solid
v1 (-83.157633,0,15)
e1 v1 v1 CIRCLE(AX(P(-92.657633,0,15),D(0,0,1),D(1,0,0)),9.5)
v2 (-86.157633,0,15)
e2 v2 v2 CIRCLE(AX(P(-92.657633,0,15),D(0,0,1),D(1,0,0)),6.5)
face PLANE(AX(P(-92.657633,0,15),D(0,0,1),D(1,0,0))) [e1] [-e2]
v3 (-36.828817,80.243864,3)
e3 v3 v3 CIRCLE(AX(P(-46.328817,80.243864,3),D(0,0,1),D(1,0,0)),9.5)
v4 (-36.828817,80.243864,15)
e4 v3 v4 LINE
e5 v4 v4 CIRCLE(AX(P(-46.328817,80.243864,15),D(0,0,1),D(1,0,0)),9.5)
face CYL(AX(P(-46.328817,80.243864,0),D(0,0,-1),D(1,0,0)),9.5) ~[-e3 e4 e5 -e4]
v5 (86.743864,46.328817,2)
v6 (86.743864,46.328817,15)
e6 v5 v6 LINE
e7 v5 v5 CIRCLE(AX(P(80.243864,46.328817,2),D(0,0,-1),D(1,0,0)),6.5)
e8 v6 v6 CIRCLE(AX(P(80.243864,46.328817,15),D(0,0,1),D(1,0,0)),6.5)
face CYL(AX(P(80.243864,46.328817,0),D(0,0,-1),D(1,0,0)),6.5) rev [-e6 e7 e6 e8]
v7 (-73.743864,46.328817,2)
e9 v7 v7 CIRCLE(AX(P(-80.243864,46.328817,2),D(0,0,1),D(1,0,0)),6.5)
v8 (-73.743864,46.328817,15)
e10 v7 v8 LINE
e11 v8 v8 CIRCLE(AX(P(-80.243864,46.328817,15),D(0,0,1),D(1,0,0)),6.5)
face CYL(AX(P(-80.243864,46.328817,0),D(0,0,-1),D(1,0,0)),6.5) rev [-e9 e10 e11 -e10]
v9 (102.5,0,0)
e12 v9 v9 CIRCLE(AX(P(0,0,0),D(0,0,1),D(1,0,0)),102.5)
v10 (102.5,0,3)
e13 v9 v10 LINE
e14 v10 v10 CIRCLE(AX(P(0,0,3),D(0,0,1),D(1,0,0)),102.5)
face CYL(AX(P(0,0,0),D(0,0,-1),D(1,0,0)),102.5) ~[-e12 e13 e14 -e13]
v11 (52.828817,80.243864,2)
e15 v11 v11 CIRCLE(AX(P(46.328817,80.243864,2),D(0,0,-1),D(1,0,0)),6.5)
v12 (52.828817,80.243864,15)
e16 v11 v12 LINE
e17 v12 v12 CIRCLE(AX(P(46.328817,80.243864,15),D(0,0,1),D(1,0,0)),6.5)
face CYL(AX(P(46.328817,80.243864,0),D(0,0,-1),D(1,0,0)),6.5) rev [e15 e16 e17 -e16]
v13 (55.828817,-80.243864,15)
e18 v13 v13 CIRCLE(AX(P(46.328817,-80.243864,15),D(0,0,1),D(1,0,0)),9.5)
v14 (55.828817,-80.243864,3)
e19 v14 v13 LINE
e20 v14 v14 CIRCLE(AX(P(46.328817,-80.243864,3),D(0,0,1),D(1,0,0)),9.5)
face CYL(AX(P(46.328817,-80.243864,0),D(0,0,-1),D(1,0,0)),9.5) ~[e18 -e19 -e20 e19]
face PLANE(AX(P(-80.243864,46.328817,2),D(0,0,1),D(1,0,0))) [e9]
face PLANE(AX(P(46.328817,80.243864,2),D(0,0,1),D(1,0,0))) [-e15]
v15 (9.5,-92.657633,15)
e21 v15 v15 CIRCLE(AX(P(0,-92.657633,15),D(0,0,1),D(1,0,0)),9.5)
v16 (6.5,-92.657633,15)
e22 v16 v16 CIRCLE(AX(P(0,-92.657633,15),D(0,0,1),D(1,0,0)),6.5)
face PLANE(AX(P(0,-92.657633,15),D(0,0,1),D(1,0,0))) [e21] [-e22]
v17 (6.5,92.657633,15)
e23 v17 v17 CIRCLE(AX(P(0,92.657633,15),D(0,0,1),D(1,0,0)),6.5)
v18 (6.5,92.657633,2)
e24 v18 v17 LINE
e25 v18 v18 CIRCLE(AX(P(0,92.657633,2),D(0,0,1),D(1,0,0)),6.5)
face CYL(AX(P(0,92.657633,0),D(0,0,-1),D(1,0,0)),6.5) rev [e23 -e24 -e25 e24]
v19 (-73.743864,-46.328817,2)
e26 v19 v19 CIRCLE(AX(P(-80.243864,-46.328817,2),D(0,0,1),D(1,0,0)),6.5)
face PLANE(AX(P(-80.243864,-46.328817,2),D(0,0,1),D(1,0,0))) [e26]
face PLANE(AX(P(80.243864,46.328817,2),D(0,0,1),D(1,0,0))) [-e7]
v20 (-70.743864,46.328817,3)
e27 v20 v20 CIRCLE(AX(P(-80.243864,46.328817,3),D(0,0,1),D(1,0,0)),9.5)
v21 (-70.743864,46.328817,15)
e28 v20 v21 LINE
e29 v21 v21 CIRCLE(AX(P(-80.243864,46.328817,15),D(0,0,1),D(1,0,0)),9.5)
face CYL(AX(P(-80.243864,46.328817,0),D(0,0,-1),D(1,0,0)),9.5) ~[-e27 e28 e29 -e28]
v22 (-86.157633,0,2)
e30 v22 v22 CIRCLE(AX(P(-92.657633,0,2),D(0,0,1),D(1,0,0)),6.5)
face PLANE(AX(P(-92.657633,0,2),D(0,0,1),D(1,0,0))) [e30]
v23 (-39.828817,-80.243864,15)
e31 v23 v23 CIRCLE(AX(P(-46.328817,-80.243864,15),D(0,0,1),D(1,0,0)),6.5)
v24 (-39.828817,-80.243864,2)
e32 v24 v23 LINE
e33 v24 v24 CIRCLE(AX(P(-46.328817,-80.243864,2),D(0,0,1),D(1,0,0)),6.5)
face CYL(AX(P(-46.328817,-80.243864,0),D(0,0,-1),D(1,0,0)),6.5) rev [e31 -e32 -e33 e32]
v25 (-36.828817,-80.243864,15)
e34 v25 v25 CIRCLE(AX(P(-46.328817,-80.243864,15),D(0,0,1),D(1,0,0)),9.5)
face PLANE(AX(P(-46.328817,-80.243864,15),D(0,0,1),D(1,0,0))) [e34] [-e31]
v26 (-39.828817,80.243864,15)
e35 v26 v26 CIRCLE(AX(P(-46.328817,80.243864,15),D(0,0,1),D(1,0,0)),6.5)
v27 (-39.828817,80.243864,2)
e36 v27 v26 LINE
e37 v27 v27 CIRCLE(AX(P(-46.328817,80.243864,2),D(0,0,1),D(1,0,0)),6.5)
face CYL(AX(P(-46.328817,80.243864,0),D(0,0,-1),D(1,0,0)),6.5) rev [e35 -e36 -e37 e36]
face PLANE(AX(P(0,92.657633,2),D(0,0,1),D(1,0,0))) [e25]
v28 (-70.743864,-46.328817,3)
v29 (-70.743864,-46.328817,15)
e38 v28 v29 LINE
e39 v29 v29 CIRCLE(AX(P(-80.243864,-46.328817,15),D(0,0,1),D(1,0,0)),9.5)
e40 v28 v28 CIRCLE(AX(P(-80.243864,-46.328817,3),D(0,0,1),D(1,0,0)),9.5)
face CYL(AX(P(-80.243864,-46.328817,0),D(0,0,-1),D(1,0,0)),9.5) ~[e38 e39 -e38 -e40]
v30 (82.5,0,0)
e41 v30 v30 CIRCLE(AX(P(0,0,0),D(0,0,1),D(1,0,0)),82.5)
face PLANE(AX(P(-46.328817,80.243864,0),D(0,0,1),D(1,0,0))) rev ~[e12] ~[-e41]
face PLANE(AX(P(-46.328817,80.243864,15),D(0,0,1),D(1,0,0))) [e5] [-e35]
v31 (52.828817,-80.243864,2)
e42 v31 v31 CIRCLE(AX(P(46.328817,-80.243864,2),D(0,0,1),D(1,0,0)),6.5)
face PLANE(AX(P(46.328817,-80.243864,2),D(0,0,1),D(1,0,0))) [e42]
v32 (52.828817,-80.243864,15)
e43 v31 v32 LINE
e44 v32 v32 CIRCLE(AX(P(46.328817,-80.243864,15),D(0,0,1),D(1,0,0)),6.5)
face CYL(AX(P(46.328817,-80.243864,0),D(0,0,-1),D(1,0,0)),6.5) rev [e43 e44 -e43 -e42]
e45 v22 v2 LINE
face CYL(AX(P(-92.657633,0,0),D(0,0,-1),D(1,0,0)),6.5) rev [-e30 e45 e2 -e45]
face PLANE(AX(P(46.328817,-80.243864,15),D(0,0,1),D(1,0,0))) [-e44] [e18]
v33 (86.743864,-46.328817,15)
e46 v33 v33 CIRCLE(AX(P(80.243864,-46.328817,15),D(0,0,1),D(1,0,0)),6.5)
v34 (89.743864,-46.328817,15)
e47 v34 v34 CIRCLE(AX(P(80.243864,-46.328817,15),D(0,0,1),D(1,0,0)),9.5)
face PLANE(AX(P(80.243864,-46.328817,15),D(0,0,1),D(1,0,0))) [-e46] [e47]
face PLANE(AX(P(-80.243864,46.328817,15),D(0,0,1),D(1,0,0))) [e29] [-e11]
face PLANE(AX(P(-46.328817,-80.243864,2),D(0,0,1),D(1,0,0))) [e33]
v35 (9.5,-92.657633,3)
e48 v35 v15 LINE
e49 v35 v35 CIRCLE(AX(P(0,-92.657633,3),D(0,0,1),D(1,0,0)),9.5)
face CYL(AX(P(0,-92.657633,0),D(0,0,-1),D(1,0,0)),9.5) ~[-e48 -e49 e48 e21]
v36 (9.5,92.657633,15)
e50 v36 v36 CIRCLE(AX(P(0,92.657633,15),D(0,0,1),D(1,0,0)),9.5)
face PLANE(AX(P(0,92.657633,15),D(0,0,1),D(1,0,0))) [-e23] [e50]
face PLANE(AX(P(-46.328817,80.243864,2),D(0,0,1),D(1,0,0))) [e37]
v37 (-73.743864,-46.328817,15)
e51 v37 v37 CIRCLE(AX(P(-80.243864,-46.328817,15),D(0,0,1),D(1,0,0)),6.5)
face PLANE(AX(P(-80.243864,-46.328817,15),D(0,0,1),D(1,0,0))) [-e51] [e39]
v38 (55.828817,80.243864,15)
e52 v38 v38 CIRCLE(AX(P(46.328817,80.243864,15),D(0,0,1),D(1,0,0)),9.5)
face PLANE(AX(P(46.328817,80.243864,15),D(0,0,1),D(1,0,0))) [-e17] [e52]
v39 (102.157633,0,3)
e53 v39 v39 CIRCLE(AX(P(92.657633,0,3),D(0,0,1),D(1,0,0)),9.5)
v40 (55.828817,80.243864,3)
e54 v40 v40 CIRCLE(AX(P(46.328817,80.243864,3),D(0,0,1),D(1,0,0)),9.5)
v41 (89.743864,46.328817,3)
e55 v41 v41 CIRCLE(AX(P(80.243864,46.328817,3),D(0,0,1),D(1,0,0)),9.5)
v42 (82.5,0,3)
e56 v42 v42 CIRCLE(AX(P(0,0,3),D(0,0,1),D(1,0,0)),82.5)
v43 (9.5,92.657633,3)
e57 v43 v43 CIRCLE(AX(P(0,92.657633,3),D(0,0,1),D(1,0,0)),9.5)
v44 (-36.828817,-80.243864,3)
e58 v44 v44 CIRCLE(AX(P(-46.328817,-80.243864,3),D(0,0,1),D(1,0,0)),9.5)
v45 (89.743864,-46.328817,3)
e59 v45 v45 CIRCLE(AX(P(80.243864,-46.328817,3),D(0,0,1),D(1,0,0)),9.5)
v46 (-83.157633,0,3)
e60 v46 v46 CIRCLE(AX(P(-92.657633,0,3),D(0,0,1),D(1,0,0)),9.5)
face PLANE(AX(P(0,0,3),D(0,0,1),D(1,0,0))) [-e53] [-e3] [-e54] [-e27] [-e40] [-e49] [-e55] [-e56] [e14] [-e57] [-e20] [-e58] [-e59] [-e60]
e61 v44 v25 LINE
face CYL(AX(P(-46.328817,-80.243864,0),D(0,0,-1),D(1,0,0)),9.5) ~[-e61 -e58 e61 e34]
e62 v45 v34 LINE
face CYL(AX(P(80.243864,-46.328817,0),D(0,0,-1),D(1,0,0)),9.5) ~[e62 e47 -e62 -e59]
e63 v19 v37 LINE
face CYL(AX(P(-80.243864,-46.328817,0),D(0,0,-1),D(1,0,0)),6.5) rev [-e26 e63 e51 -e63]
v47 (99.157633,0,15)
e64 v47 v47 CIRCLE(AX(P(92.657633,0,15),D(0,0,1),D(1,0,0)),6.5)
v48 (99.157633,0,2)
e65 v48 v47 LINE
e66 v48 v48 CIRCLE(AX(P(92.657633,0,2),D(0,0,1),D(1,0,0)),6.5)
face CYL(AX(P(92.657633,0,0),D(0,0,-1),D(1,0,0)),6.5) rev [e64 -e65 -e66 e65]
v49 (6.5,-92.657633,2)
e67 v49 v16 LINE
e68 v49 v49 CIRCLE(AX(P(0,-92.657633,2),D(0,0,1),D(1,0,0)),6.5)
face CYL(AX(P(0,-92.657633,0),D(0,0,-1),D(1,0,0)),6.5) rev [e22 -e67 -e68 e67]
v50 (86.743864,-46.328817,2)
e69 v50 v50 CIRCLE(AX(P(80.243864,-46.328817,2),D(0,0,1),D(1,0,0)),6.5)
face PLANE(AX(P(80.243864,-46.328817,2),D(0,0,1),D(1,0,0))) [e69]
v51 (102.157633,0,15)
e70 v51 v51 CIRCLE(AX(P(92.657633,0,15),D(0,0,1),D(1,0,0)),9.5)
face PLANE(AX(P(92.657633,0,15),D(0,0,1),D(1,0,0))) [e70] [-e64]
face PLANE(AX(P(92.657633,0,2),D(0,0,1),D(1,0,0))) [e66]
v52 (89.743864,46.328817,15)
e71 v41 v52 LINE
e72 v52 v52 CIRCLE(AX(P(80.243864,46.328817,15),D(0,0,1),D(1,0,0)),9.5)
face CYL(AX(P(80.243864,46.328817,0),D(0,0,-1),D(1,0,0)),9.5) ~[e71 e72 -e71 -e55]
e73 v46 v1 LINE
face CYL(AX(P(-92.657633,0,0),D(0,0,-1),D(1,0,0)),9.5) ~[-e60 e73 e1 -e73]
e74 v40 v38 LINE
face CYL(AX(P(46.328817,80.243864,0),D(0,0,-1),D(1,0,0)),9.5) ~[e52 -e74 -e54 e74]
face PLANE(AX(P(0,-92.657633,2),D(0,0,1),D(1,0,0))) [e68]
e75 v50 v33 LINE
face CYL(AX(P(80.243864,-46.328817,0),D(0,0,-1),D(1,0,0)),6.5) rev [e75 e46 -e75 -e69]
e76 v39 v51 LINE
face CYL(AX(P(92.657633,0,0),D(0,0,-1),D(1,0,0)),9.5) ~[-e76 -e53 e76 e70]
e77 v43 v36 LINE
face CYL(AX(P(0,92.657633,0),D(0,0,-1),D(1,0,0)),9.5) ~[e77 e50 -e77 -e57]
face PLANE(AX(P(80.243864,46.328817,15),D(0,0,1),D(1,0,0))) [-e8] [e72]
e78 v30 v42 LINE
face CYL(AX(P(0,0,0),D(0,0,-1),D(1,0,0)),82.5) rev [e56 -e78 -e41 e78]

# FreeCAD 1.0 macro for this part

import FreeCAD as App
import Part
import Sketcher

doc = App.newDocument("Part")
params = doc.addObject("Spreadsheet::Sheet", "Params")
for row, (alias, value) in enumerate([
    ("sketch1_diameter", "205 mm"),
    ("sketch1_diameter2", "19 mm"),
    ("sketch1_diameter3", "165 mm"),
    ("pad1_length", "3 mm"),
    ("sketch2_diameter", "19 mm"),
    ("sketch2_diameter2", "13 mm"),
    ("pad2_length", "15 mm"),
    ("sketch3_diameter", "13 mm"),
    ("sketch3_diameter2", "19 mm"),
    ("pad3_length", "2 mm"),
], start=1):
    params.set(f"A{row}", alias)
    params.set(f"B{row}", "=" + value)
    params.setAlias(f"B{row}", alias)

body = doc.addObject("PartDesign::Body", "Body")

sketch1 = body.newObject("Sketcher::SketchObject", "Sketch")
sketch1.AttachmentSupport = (doc.getObject("XY_Plane"), [""])
sketch1.MapMode = "FlatFace"
sketch1.addGeometry([
    Part.Circle(App.Vector(0, 0, 0), App.Vector(0, 0, 1), 102),
    Part.Circle(App.Vector(-46, -80, 0), App.Vector(0, 0, 1), 10),
    Part.Circle(App.Vector(-80, -46, 0), App.Vector(0, 0, 1), 10),
    Part.Circle(App.Vector(0, -93, 0), App.Vector(0, 0, 1), 10),
    Part.Circle(App.Vector(46, -80, 0), App.Vector(0, 0, 1), 10),
    Part.Circle(App.Vector(80, -46, 0), App.Vector(0, 0, 1), 10),
    Part.Circle(App.Vector(-93, 0, 0), App.Vector(0, 0, 1), 10),
    Part.Circle(App.Vector(-80, 46, 0), App.Vector(0, 0, 1), 10),
    Part.Circle(App.Vector(-46, 80, 0), App.Vector(0, 0, 1), 10),
    Part.Circle(App.Vector(0, 0, 0), App.Vector(0, 0, 1), 82),
    Part.Circle(App.Vector(93, 0, 0), App.Vector(0, 0, 1), 10),
    Part.Circle(App.Vector(80, 46, 0), App.Vector(0, 0, 1), 10),
    Part.Circle(App.Vector(0, 93, 0), App.Vector(0, 0, 1), 10),
    Part.Circle(App.Vector(46, 80, 0), App.Vector(0, 0, 1), 10),
], False)
sketch1.addConstraint([
    Sketcher.Constraint("Coincident", 0, 3, -1, 1),
    Sketcher.Constraint("Coincident", 9, 3, -1, 1),
    Sketcher.Constraint("Equal", 1, 2),
    Sketcher.Constraint("Equal", 2, 3),
    Sketcher.Constraint("Equal", 3, 4),
    Sketcher.Constraint("Equal", 4, 5),
    Sketcher.Constraint("Equal", 5, 6),
    Sketcher.Constraint("Equal", 6, 7),
    Sketcher.Constraint("Equal", 7, 8),
    Sketcher.Constraint("Equal", 8, 10),
    Sketcher.Constraint("Equal", 10, 11),
    Sketcher.Constraint("Equal", 11, 12),
    Sketcher.Constraint("Equal", 12, 13),
    Sketcher.Constraint("Symmetric", 5, 3, 7, 3, -1, 1),
    Sketcher.Constraint("Symmetric", 4, 3, 8, 3, -1, 1),
    Sketcher.Constraint("Symmetric", 6, 3, 10, 3, -1, 1),
    Sketcher.Constraint("Symmetric", 2, 3, 11, 3, -1, 1),
    Sketcher.Constraint("Symmetric", 3, 3, 12, 3, -1, 1),
    Sketcher.Constraint("Symmetric", 1, 3, 13, 3, -1, 1),
    Sketcher.Constraint("Symmetric", 1, 3, 4, 3, -2),
    Sketcher.Constraint("Symmetric", 2, 3, 5, 3, -2),
    Sketcher.Constraint("PointOnObject", 3, 3, -2),
    Sketcher.Constraint("PointOnObject", 6, 3, -1),
    Sketcher.Constraint("Diameter", 0, 205.0),
    Sketcher.Constraint("Diameter", 1, 19.0),
    Sketcher.Constraint("Diameter", 9, 165.0),
    Sketcher.Constraint("DistanceY", 3, 3, 1, 3, 12.413769),
    Sketcher.Constraint("DistanceX", 2, 3, 4, 3, 126.572681),
    Sketcher.Constraint("DistanceX", 2, 3, 5, 3, 160.487728),
    Sketcher.Constraint("DistanceX", 6, 3, 2, 3, 12.413769),
    Sketcher.Constraint("DistanceY", 1, 3, 7, 3, 126.572681),
    Sketcher.Constraint("DistanceY", 1, 3, 8, 3, 160.487728),
])
sketch1.setExpression("Constraints[23]", "Params.sketch1_diameter")
sketch1.setExpression("Constraints[24]", "Params.sketch1_diameter2")
sketch1.setExpression("Constraints[25]", "Params.sketch1_diameter3")
pad1 = body.newObject("PartDesign::Pad", "Pad")
pad1.Profile = sketch1
pad1.setExpression("Length", "Params.pad1_length")

sketch2 = body.newObject("Sketcher::SketchObject", "Sketch001")
sketch2.AttachmentSupport = (doc.getObject("XY_Plane"), [""])
sketch2.MapMode = "FlatFace"
sketch2.addGeometry([
    Part.Circle(App.Vector(-80, 46, 0), App.Vector(0, 0, 1), 10),
    Part.Circle(App.Vector(-80, 46, 0), App.Vector(0, 0, 1), 6),
    Part.Circle(App.Vector(-46, 80, 0), App.Vector(0, 0, 1), 10),
    Part.Circle(App.Vector(-46, 80, 0), App.Vector(0, 0, 1), 6),
    Part.Circle(App.Vector(0, 93, 0), App.Vector(0, 0, 1), 10),
    Part.Circle(App.Vector(0, 93, 0), App.Vector(0, 0, 1), 6),
    Part.Circle(App.Vector(93, 0, 0), App.Vector(0, 0, 1), 10),
    Part.Circle(App.Vector(93, 0, 0), App.Vector(0, 0, 1), 6),
    Part.Circle(App.Vector(80, -46, 0), App.Vector(0, 0, 1), 10),
    Part.Circle(App.Vector(80, -46, 0), App.Vector(0, 0, 1), 6),
    Part.Circle(App.Vector(46, -80, 0), App.Vector(0, 0, 1), 10),
    Part.Circle(App.Vector(46, -80, 0), App.Vector(0, 0, 1), 6),
    Part.Circle(App.Vector(0, -93, 0), App.Vector(0, 0, 1), 10),
    Part.Circle(App.Vector(0, -93, 0), App.Vector(0, 0, 1), 6),
    Part.Circle(App.Vector(-46, -80, 0), App.Vector(0, 0, 1), 10),
    Part.Circle(App.Vector(-46, -80, 0), App.Vector(0, 0, 1), 6),
    Part.Circle(App.Vector(-80, -46, 0), App.Vector(0, 0, 1), 10),
    Part.Circle(App.Vector(-80, -46, 0), App.Vector(0, 0, 1), 6),
    Part.Circle(App.Vector(-93, 0, 0), App.Vector(0, 0, 1), 10),
    Part.Circle(App.Vector(-93, 0, 0), App.Vector(0, 0, 1), 6),
    Part.Circle(App.Vector(46, 80, 0), App.Vector(0, 0, 1), 10),
    Part.Circle(App.Vector(46, 80, 0), App.Vector(0, 0, 1), 6),
    Part.Circle(App.Vector(80, 46, 0), App.Vector(0, 0, 1), 10),
    Part.Circle(App.Vector(80, 46, 0), App.Vector(0, 0, 1), 6),
], False)
sketch2.addConstraint([
    Sketcher.Constraint("Coincident", 1, 3, 0, 3),
    Sketcher.Constraint("Coincident", 3, 3, 2, 3),
    Sketcher.Constraint("Coincident", 5, 3, 4, 3),
    Sketcher.Constraint("Coincident", 7, 3, 6, 3),
    Sketcher.Constraint("Coincident", 9, 3, 8, 3),
    Sketcher.Constraint("Coincident", 11, 3, 10, 3),
    Sketcher.Constraint("Coincident", 13, 3, 12, 3),
    Sketcher.Constraint("Coincident", 15, 3, 14, 3),
    Sketcher.Constraint("Coincident", 17, 3, 16, 3),
    Sketcher.Constraint("Coincident", 19, 3, 18, 3),
    Sketcher.Constraint("Coincident", 21, 3, 20, 3),
    Sketcher.Constraint("Coincident", 23, 3, 22, 3),
    Sketcher.Constraint("Equal", 0, 2),
    Sketcher.Constraint("Equal", 1, 3),
    Sketcher.Constraint("Equal", 2, 4),
    Sketcher.Constraint("Equal", 3, 5),
    Sketcher.Constraint("Equal", 4, 6),
    Sketcher.Constraint("Equal", 5, 7),
    Sketcher.Constraint("Equal", 6, 8),
    Sketcher.Constraint("Equal", 7, 9),
    Sketcher.Constraint("Equal", 8, 10),
    Sketcher.Constraint("Equal", 9, 11),
    Sketcher.Constraint("Equal", 10, 12),
    Sketcher.Constraint("Equal", 11, 13),
    Sketcher.Constraint("Equal", 12, 14),
    Sketcher.Constraint("Equal", 13, 15),
    Sketcher.Constraint("Equal", 14, 16),
    Sketcher.Constraint("Equal", 15, 17),
    Sketcher.Constraint("Equal", 16, 18),
    Sketcher.Constraint("Equal", 17, 19),
    Sketcher.Constraint("Equal", 18, 20),
    Sketcher.Constraint("Equal", 19, 21),
    Sketcher.Constraint("Equal", 20, 22),
    Sketcher.Constraint("Equal", 21, 23),
    Sketcher.Constraint("Symmetric", 0, 3, 8, 3, -1, 1),
    Sketcher.Constraint("Symmetric", 2, 3, 10, 3, -1, 1),
    Sketcher.Constraint("Symmetric", 4, 3, 12, 3, -1, 1),
    Sketcher.Constraint("Symmetric", 6, 3, 18, 3, -1, 1),
    Sketcher.Constraint("Symmetric", 14, 3, 20, 3, -1, 1),
    Sketcher.Constraint("Symmetric", 16, 3, 22, 3, -1, 1),
    Sketcher.Constraint("Symmetric", 10, 3, 14, 3, -2),
    Sketcher.Constraint("Symmetric", 8, 3, 16, 3, -2),
    Sketcher.Constraint("PointOnObject", 4, 3, -2),
    Sketcher.Constraint("PointOnObject", 6, 3, -1),
    Sketcher.Constraint("Diameter", 0, 19.0),
    Sketcher.Constraint("Diameter", 1, 13.0),
    Sketcher.Constraint("DistanceY", 2, 3, 4, 3, 12.413769),
    Sketcher.Constraint("DistanceX", 2, 3, 6, 3, 138.98645),
    Sketcher.Constraint("DistanceX", 8, 3, 6, 3, 12.413769),
    Sketcher.Constraint("DistanceY", 8, 3, 4, 3, 138.98645),
    Sketcher.Constraint("DistanceX", 0, 3, -1, 1, 80.243864),
    Sketcher.Constraint("DistanceY", -1, 1, 0, 3, 46.328817),
])
sketch2.setExpression("Constraints[44]", "Params.sketch2_diameter")
sketch2.setExpression("Constraints[45]", "Params.sketch2_diameter2")
pad2 = body.newObject("PartDesign::Pad", "Pad001")
pad2.Profile = sketch2
pad2.setExpression("Length", "Params.pad2_length")

sketch3 = body.newObject("Sketcher::SketchObject", "Sketch002")
sketch3.AttachmentSupport = (doc.getObject("XY_Plane"), [""])
sketch3.MapMode = "FlatFace"
sketch3.addGeometry([
    Part.Circle(App.Vector(-46, 80, 0), App.Vector(0, 0, 1), 6),
    Part.Circle(App.Vector(0, 93, 0), App.Vector(0, 0, 1), 6),
    Part.Circle(App.Vector(93, 0, 0), App.Vector(0, 0, 1), 6),
    Part.Circle(App.Vector(80, -46, 0), App.Vector(0, 0, 1), 6),
    Part.Circle(App.Vector(46, -80, 0), App.Vector(0, 0, 1), 6),
    Part.Circle(App.Vector(0, -93, 0), App.Vector(0, 0, 1), 6),
    Part.Circle(App.Vector(-46, -80, 0), App.Vector(0, 0, 1), 6),
    Part.Circle(App.Vector(-80, -46, 0), App.Vector(0, 0, 1), 6),
    Part.Circle(App.Vector(-93, 0, 0), App.Vector(0, 0, 1), 6),
    Part.Circle(App.Vector(-80, 46, 0), App.Vector(0, 0, 1), 6),
    Part.Circle(App.Vector(46, 80, 0), App.Vector(0, 0, 1), 10),
    Part.Circle(App.Vector(80, 46, 0), App.Vector(0, 0, 1), 10),
], False)
sketch3.addConstraint([
    Sketcher.Constraint("Equal", 0, 1),
    Sketcher.Constraint("Equal", 1, 2),
    Sketcher.Constraint("Equal", 2, 3),
    Sketcher.Constraint("Equal", 3, 4),
    Sketcher.Constraint("Equal", 4, 5),
    Sketcher.Constraint("Equal", 5, 6),
    Sketcher.Constraint("Equal", 6, 7),
    Sketcher.Constraint("Equal", 7, 8),
    Sketcher.Constraint("Equal", 8, 9),
    Sketcher.Constraint("Equal", 10, 11),
    Sketcher.Constraint("Symmetric", 0, 3, 4, 3, -1, 1),
    Sketcher.Constraint("Symmetric", 1, 3, 5, 3, -1, 1),
    Sketcher.Constraint("Symmetric", 2, 3, 8, 3, -1, 1),
    Sketcher.Constraint("Symmetric", 3, 3, 9, 3, -1, 1),
    Sketcher.Constraint("Symmetric", 6, 3, 10, 3, -1, 1),
    Sketcher.Constraint("Symmetric", 7, 3, 11, 3, -1, 1),
    Sketcher.Constraint("Symmetric", 4, 3, 6, 3, -2),
    Sketcher.Constraint("Symmetric", 3, 3, 7, 3, -2),
    Sketcher.Constraint("PointOnObject", 1, 3, -2),
    Sketcher.Constraint("PointOnObject", 2, 3, -1),
    Sketcher.Constraint("Diameter", 0, 13.0),
    Sketcher.Constraint("Diameter", 10, 19.0),
    Sketcher.Constraint("DistanceY", 0, 3, 1, 3, 12.413769),
    Sketcher.Constraint("DistanceX", 0, 3, 2, 3, 138.98645),
    Sketcher.Constraint("DistanceX", 3, 3, 2, 3, 12.413769),
    Sketcher.Constraint("DistanceY", 3, 3, 1, 3, 138.98645),
    Sketcher.Constraint("DistanceY", 4, 3, 0, 3, 160.487728),
    Sketcher.Constraint("DistanceX", 7, 3, 3, 3, 160.487728),
])
sketch3.setExpression("Constraints[20]", "Params.sketch3_diameter")
sketch3.setExpression("Constraints[21]", "Params.sketch3_diameter2")
pad3 = body.newObject("PartDesign::Pad", "Pad002")
pad3.Profile = sketch3
pad3.setExpression("Length", "Params.pad3_length")

doc.recompute()
